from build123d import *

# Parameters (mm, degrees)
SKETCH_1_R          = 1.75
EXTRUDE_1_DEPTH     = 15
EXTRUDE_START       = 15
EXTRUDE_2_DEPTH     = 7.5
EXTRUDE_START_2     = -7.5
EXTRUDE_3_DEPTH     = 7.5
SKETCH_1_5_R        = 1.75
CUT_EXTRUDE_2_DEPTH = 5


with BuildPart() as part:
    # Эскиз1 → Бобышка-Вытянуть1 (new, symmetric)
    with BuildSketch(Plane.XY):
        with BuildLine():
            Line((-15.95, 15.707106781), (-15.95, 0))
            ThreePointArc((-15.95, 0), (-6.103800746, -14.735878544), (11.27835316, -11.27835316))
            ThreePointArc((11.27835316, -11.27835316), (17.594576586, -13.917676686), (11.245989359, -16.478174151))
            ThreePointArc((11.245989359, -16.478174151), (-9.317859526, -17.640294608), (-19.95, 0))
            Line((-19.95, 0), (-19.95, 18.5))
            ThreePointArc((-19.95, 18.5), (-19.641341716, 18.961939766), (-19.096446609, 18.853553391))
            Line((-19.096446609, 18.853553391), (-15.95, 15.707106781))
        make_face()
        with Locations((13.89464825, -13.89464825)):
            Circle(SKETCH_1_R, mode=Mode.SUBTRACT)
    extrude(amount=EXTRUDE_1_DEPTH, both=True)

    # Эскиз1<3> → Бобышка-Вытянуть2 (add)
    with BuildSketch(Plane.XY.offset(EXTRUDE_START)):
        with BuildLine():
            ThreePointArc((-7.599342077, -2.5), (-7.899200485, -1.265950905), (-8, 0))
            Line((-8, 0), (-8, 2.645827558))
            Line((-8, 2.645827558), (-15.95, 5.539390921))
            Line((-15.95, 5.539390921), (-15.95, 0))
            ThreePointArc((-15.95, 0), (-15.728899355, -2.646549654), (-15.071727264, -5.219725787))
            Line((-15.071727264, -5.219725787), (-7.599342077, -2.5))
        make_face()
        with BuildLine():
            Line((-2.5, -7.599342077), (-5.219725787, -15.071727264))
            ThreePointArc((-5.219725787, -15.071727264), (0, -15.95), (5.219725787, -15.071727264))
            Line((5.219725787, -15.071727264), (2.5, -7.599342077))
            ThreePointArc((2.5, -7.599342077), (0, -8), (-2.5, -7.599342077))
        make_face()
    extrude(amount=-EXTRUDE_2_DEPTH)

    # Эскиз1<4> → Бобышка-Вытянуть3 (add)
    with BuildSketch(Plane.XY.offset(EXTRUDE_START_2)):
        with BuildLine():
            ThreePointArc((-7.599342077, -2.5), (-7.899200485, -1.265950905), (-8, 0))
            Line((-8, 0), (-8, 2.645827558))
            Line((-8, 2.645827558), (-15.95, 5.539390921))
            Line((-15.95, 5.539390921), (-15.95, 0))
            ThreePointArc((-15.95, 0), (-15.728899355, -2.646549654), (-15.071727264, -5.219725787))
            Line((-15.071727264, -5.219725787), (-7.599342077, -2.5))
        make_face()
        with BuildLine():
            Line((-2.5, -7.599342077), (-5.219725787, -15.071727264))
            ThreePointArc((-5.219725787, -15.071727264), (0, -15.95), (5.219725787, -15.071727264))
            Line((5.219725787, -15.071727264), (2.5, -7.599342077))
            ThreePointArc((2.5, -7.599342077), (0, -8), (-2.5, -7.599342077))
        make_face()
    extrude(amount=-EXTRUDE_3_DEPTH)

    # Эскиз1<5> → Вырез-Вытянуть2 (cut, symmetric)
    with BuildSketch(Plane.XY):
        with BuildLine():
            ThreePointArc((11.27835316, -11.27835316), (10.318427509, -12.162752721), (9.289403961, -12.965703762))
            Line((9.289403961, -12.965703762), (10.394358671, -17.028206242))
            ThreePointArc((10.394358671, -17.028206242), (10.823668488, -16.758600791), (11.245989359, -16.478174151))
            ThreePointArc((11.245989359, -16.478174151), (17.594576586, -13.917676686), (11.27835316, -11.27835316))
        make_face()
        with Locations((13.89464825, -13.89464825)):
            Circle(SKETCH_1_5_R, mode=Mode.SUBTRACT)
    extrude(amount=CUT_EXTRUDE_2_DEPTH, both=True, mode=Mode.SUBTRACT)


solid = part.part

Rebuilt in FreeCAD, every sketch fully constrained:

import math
import FreeCAD as App
import Part
import Sketcher

V = App.Vector
Q = App.Units.Quantity

doc = App.newDocument("Part")
body = doc.addObject("PartDesign::Body", "Body")

# Sketch on XY plane
sketch1 = body.newObject("Sketcher::SketchObject", "Sketch")
sketch1.AttachmentSupport = (doc.getObject("XY_Plane"), [""])
sketch1.MapMode = "FlatFace"
sketch1.addGeometry([
    Part.LineSegment(V(-15.9, 0, 0), V(-15.9, 15.7, 0)),  # 0
    Part.LineSegment(V(-15.9, 15.7, 0), V(-19.1, 18.9, 0)),  # 1
    Part.ArcOfCircle(Part.Circle(V(-19.4, 18.5, 0), V(0, 0, 1), 0.5), math.radians(45), math.radians(180)),  # 2
    Part.LineSegment(V(-19.9, 18.5, 0), V(-19.9, 0, 0)),  # 3
    Part.ArcOfCircle(Part.Circle(V(0, 0, 0), V(0, 0, 1), 19.9), math.radians(180), math.radians(304)),  # 4
    Part.ArcOfCircle(Part.Circle(V(13.9, -13.9, 0), V(0, 0, 1), 3.7), math.radians(-136), math.radians(135)),  # 5
    Part.ArcOfCircle(Part.Circle(V(0, 0, 0), V(0, 0, 1), 15.9), math.radians(180), math.radians(315)),  # 6
    Part.Circle(V(13.9, -13.9, 0), V(0, 0, 1), 1.8),  # 7
], False)
sketch1.addConstraint([
    Sketcher.Constraint("Coincident", 0, 2, 1, 1),
    Sketcher.Constraint("Tangent", 1, 2, 2, 1),
    Sketcher.Constraint("Tangent", 2, 2, 3, 1),
    Sketcher.Constraint("Tangent", 3, 2, 4, 1),
    Sketcher.Constraint("Coincident", 4, 2, 5, 1),
    Sketcher.Constraint("Tangent", 5, 2, 6, 2),
    Sketcher.Constraint("Tangent", 6, 1, 0, 1),
    Sketcher.Constraint("Vertical", 0),
    Sketcher.Constraint("Vertical", 3),
    Sketcher.Constraint("Coincident", 4, 3, -1, 1),
    Sketcher.Constraint("Coincident", 6, 3, -1, 1),
    Sketcher.Constraint("Coincident", 7, 3, 5, 3),
    Sketcher.Constraint("Diameter", 7, Q("3.5 mm")),
    Sketcher.Constraint("Radius", 2, Q("0.5 mm")),
    Sketcher.Constraint("Radius", 5, Q("3.7 mm")),
    Sketcher.Constraint("Angle", 1, Q("135 deg")),
    Sketcher.Constraint("Radius", 4, Q("19.95 mm")),
    Sketcher.Constraint("Radius", 6, Q("15.95 mm")),
    Sketcher.Constraint("DistanceY", 3, 2, 3, 1, Q("18.5 mm")),
    Sketcher.Constraint("DistanceY", 7, 3, 1, 2, Q("32.748202 mm")),
])
pad1 = body.newObject("PartDesign::Pad", "Pad")
pad1.Profile = sketch1
pad1.Length = 30
pad1.Midplane = True

# Sketch on XY plane
sketch2 = body.newObject("Sketcher::SketchObject", "Sketch001")
sketch2.AttachmentSupport = (doc.getObject("XY_Plane"), [""])
sketch2.MapMode = "FlatFace"
sketch2.AttachmentOffset = App.Placement(V(0, 0, 15), App.Rotation())
sketch2.addGeometry([
    Part.ArcOfCircle(Part.Circle(V(0, 0, 0), V(0, 0, 1), 8), math.radians(-180), math.radians(-161.79)),  # 0
    Part.LineSegment(V(-8, 0, 0), V(-8, 2.6, 0)),  # 1
    Part.LineSegment(V(-8, 2.6, 0), V(-15.9, 5.5, 0)),  # 2
    Part.LineSegment(V(-15.9, 5.5, 0), V(-15.9, 0, 0)),  # 3
    Part.ArcOfCircle(Part.Circle(V(0, 0, 0), V(0, 0, 1), 16), math.radians(-180), math.radians(-160.9)),  # 4
    Part.LineSegment(V(-15.1, -5.2, 0), V(-7.6, -2.5, 0)),  # 5
    Part.LineSegment(V(-2.5, -7.6, 0), V(-5.2, -15.1, 0)),  # 6
    Part.ArcOfCircle(Part.Circle(V(0, 0, 0), V(0, 0, 1), 16), math.radians(-109), math.radians(-71)),  # 7
    Part.LineSegment(V(5.2, -15.1, 0), V(2.5, -7.6, 0)),  # 8
    Part.ArcOfCircle(Part.Circle(V(0, 0, 0), V(0, 0, 1), 8), math.radians(-108), math.radians(-72)),  # 9
], False)
sketch2.addConstraint([
    Sketcher.Constraint("Tangent", 0, 1, 1, 1),
    Sketcher.Constraint("Coincident", 1, 2, 2, 1),
    Sketcher.Constraint("Coincident", 2, 2, 3, 1),
    Sketcher.Constraint("Tangent", 3, 2, 4, 1),
    Sketcher.Constraint("Coincident", 4, 2, 5, 1),
    Sketcher.Constraint("Coincident", 5, 2, 0, 2),
    Sketcher.Constraint("Coincident", 6, 2, 7, 1),
    Sketcher.Constraint("Coincident", 7, 2, 8, 1),
    Sketcher.Constraint("Coincident", 8, 2, 9, 2),
    Sketcher.Constraint("Coincident", 9, 1, 6, 1),
    Sketcher.Constraint("Vertical", 1),
    Sketcher.Constraint("Vertical", 3),
    Sketcher.Constraint("Coincident", 0, 3, -1, 1),
    Sketcher.Constraint("Coincident", 4, 3, -1, 1),
    Sketcher.Constraint("Coincident", 7, 3, -1, 1),
    Sketcher.Constraint("Coincident", 9, 3, -1, 1),
    Sketcher.Constraint("Equal", 4, 7),
    Sketcher.Constraint("Equal", 0, 9),
    Sketcher.Constraint("Perpendicular", 2, 6),
    Sketcher.Constraint("Perpendicular", 5, 8),
    Sketcher.Constraint("Horizontal", 6, 2, 7, 2),
    Sketcher.Constraint("Horizontal", 8, 2, 9, 1),
    Sketcher.Constraint("Equal", 5, 6),
    Sketcher.Constraint("Radius", 0, Q("8 mm")),
    Sketcher.Constraint("Angle", 2, Q("160 deg")),
    Sketcher.Constraint("Radius", 4, Q("15.95 mm")),
    Sketcher.Constraint("DistanceX", 9, 1, 8, 2, Q("5 mm")),
    Sketcher.Constraint("DistanceY", 3, 2, 3, 1, Q("5.539391 mm")),
])
pad2 = body.newObject("PartDesign::Pad", "Pad001")
pad2.Profile = sketch2
pad2.Length = 7.5
pad2.Reversed = True

# Sketch on XY plane
sketch3 = body.newObject("Sketcher::SketchObject", "Sketch002")
sketch3.AttachmentSupport = (doc.getObject("XY_Plane"), [""])
sketch3.MapMode = "FlatFace"
sketch3.AttachmentOffset = App.Placement(V(0, 0, -7.5), App.Rotation())
sketch3.addGeometry([
    Part.ArcOfCircle(Part.Circle(V(0, 0, 0), V(0, 0, 1), 8), math.radians(-180), math.radians(-161.79)),  # 0
    Part.LineSegment(V(-8, 0, 0), V(-8, 2.6, 0)),  # 1
    Part.LineSegment(V(-8, 2.6, 0), V(-15.9, 5.5, 0)),  # 2
    Part.LineSegment(V(-15.9, 5.5, 0), V(-15.9, 0, 0)),  # 3
    Part.ArcOfCircle(Part.Circle(V(0, 0, 0), V(0, 0, 1), 16), math.radians(-180), math.radians(-160.9)),  # 4
    Part.LineSegment(V(-15.1, -5.2, 0), V(-7.6, -2.5, 0)),  # 5
    Part.LineSegment(V(-2.5, -7.6, 0), V(-5.2, -15.1, 0)),  # 6
    Part.ArcOfCircle(Part.Circle(V(0, 0, 0), V(0, 0, 1), 16), math.radians(-109), math.radians(-71)),  # 7
    Part.LineSegment(V(5.2, -15.1, 0), V(2.5, -7.6, 0)),  # 8
    Part.ArcOfCircle(Part.Circle(V(0, 0, 0), V(0, 0, 1), 8), math.radians(-108), math.radians(-72)),  # 9
], False)
sketch3.addConstraint([
    Sketcher.Constraint("Tangent", 0, 1, 1, 1),
    Sketcher.Constraint("Coincident", 1, 2, 2, 1),
    Sketcher.Constraint("Coincident", 2, 2, 3, 1),
    Sketcher.Constraint("Tangent", 3, 2, 4, 1),
    Sketcher.Constraint("Coincident", 4, 2, 5, 1),
    Sketcher.Constraint("Coincident", 5, 2, 0, 2),
    Sketcher.Constraint("Coincident", 6, 2, 7, 1),
    Sketcher.Constraint("Coincident", 7, 2, 8, 1),
    Sketcher.Constraint("Coincident", 8, 2, 9, 2),
    Sketcher.Constraint("Coincident", 9, 1, 6, 1),
    Sketcher.Constraint("Vertical", 1),
    Sketcher.Constraint("Vertical", 3),
    Sketcher.Constraint("Coincident", 0, 3, -1, 1),
    Sketcher.Constraint("Coincident", 4, 3, -1, 1),
    Sketcher.Constraint("Coincident", 7, 3, -1, 1),
    Sketcher.Constraint("Coincident", 9, 3, -1, 1),
    Sketcher.Constraint("Equal", 4, 7),
    Sketcher.Constraint("Equal", 0, 9),
    Sketcher.Constraint("Perpendicular", 2, 6),
    Sketcher.Constraint("Perpendicular", 5, 8),
    Sketcher.Constraint("Horizontal", 6, 2, 7, 2),
    Sketcher.Constraint("Horizontal", 8, 2, 9, 1),
    Sketcher.Constraint("Equal", 5, 6),
    Sketcher.Constraint("Radius", 0, Q("8 mm")),
    Sketcher.Constraint("Angle", 2, Q("160 deg")),
    Sketcher.Constraint("Radius", 4, Q("15.95 mm")),
    Sketcher.Constraint("DistanceX", 9, 1, 8, 2, Q("5 mm")),
    Sketcher.Constraint("DistanceY", 3, 2, 3, 1, Q("5.539391 mm")),
])
pad3 = body.newObject("PartDesign::Pad", "Pad002")
pad3.Profile = sketch3
pad3.Length = 7.5
pad3.Reversed = True

# Sketch on XY plane
sketch4 = body.newObject("Sketcher::SketchObject", "Sketch003")
sketch4.AttachmentSupport = (doc.getObject("XY_Plane"), [""])
sketch4.MapMode = "FlatFace"
sketch4.addGeometry([
    Part.ArcOfCircle(Part.Circle(V(0, 0, 0), V(0, 0, 1), 15.9), math.radians(-54.38), math.radians(-45)),  # 0
    Part.LineSegment(V(9.3, -13, 0), V(10.4, -17, 0)),  # 1
    Part.ArcOfCircle(Part.Circle(V(0, 0, 0), V(0, 0, 1), 19.9), math.radians(-58.6), math.radians(-55.69)),  # 2
    Part.ArcOfCircle(Part.Circle(V(13.9, -13.9, 0), V(0, 0, 1), 3.7), math.radians(-136), math.radians(135)),  # 3
    Part.Circle(V(13.9, -13.9, 0), V(0, 0, 1), 1.8),  # 4
], False)
sketch4.addConstraint([
    Sketcher.Constraint("Coincident", 0, 1, 1, 1),
    Sketcher.Constraint("Coincident", 1, 2, 2, 1),
    Sketcher.Constraint("Coincident", 2, 2, 3, 1),
    Sketcher.Constraint("Tangent", 3, 2, 0, 2),
    Sketcher.Constraint("Coincident", 0, 3, -1, 1),
    Sketcher.Constraint("Coincident", 2, 3, -1, 1),
    Sketcher.Constraint("Coincident", 4, 3, 3, 3),
    Sketcher.Constraint("Diameter", 4, Q("3.5 mm")),
    Sketcher.Constraint("Radius", 3, Q("3.7 mm")),
    Sketcher.Constraint("Radius", 0, Q("15.95 mm")),
    Sketcher.Constraint("Radius", 2, Q("19.95 mm")),
    Sketcher.Constraint("Distance", 1, Q("4.210089 mm")),
    Sketcher.Constraint("DistanceX", -1, 1, 3, 3, Q("13.894648 mm")),
    Sketcher.Constraint("DistanceX", -1, 1, 1, 2, Q("10.394359 mm")),
])
pocket1 = body.newObject("PartDesign::Pocket", "Pocket")
pocket1.Profile = sketch4
pocket1.Length = 10
pocket1.Midplane = True

doc.recompute()
